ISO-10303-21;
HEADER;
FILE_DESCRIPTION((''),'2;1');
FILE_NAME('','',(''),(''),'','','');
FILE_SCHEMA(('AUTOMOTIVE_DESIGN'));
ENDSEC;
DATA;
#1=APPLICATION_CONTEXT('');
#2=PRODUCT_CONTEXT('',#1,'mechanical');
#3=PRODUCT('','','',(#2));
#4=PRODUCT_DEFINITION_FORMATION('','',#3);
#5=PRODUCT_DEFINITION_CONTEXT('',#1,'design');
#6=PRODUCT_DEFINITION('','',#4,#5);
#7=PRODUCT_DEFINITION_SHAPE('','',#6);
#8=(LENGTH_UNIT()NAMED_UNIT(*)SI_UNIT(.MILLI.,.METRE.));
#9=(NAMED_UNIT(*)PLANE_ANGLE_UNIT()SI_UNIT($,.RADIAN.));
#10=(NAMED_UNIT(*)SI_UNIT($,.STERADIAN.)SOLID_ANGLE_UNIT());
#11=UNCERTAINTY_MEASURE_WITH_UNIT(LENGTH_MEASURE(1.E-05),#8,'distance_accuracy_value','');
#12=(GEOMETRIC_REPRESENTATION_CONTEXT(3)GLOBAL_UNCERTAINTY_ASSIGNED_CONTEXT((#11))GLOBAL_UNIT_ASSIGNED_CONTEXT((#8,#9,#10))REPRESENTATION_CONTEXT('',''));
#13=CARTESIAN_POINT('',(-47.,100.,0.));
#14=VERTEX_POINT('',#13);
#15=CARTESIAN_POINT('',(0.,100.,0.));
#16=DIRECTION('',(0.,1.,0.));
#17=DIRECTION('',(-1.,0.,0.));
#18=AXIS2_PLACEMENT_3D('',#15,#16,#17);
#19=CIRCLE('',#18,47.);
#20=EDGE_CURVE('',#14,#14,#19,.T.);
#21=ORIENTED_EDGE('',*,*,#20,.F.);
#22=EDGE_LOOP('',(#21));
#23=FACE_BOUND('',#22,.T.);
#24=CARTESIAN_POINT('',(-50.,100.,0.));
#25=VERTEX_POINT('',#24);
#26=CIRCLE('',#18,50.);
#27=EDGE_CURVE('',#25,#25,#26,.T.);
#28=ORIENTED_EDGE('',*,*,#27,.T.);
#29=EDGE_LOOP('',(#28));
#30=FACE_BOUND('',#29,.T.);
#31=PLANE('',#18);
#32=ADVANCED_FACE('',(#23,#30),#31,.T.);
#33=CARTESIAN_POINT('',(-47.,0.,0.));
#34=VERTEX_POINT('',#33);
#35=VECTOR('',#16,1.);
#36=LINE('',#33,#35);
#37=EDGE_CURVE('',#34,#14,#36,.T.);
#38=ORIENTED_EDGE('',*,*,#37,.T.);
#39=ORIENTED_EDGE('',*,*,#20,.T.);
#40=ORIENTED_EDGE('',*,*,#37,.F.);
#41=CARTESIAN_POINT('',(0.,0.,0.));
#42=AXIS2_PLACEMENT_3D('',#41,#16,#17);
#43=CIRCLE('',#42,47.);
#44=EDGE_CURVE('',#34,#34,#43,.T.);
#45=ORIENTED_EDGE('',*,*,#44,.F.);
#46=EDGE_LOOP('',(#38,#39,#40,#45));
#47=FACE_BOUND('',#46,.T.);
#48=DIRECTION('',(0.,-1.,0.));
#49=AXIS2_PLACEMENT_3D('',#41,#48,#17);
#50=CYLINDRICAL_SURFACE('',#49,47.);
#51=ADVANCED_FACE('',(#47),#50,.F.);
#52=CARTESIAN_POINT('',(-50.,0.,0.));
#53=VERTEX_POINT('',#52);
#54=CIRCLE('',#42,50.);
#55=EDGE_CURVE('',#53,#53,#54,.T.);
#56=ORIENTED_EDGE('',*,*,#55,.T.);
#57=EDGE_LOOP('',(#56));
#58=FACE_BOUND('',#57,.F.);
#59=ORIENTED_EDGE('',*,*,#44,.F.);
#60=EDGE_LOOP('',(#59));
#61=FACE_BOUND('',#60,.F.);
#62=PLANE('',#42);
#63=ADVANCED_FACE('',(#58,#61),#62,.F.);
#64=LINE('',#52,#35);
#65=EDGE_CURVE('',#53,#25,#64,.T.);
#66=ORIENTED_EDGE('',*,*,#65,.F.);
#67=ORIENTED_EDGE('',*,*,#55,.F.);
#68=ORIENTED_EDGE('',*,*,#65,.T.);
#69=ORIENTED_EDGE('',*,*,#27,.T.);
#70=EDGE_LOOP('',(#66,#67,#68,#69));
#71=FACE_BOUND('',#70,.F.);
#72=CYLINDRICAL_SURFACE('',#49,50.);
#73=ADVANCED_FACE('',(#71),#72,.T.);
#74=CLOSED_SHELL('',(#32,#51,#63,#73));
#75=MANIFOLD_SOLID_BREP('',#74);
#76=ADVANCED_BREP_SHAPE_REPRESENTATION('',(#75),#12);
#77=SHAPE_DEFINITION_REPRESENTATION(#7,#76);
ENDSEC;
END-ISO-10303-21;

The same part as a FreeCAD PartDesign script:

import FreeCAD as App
import Part
import Sketcher

V = App.Vector

doc = App.newDocument("Part")
body = doc.addObject("PartDesign::Body", "Body")

sketch1 = body.newObject("Sketcher::SketchObject", "Sketch")
sketch1.AttachmentSupport = (doc.getObject("XZ_Plane"), [""])
sketch1.MapMode = "FlatFace"
sketch1.addGeometry([
    Part.Circle(V(0, 0, 0), V(0, 0, 1), 50),
    Part.Circle(V(0, 0, 0), V(0, 0, 1), 47),
], False)
sketch1.addConstraint([
    Sketcher.Constraint("Coincident", 0, 3, -1, 1),
    Sketcher.Constraint("Coincident", 1, 3, -1, 1),
    Sketcher.Constraint("Diameter", 0, 100.0),
    Sketcher.Constraint("Diameter", 1, 94.0),
])
pad1 = body.newObject("PartDesign::Pad", "Pad")
pad1.Profile = sketch1
pad1.Length = 100
pad1.Reversed = True

doc.recompute()
